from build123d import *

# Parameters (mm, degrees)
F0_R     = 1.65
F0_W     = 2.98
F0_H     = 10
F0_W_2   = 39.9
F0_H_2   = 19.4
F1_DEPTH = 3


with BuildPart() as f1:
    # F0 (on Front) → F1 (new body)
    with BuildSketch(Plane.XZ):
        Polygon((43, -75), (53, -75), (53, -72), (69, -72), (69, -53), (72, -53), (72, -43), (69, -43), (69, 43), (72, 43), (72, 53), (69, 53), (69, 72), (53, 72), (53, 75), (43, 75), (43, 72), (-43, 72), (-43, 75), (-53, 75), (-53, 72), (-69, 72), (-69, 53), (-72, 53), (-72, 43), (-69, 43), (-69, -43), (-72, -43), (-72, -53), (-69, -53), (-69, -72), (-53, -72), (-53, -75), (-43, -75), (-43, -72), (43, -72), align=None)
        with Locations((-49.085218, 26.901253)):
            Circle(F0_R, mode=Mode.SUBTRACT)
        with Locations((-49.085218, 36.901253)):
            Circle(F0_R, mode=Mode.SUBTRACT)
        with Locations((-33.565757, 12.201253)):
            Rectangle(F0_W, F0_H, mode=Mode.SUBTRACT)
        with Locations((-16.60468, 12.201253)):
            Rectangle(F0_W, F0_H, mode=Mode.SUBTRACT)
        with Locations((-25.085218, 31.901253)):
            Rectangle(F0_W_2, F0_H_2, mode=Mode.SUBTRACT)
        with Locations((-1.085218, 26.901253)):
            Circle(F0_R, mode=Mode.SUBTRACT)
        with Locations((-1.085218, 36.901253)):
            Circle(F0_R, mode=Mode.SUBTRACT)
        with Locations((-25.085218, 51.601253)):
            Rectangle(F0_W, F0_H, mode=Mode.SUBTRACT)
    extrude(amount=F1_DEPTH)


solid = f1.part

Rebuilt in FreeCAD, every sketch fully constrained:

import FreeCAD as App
import Part
import Sketcher


def add_polygon(sketch, points):
    """Adds a closed chain of lines whose ends are joined by coincident constraints."""
    first, n = sketch.GeometryCount, len(points)
    for a, b in zip(points, points[1:] + points[:1]):
        sketch.addGeometry(Part.LineSegment(App.Vector(*a, 0), App.Vector(*b, 0)), False)
    for i in range(n):
        sketch.addConstraint(Sketcher.Constraint("Coincident", first + i, 2, first + (i + 1) % n, 1))

doc = App.newDocument("Part")
params = doc.addObject("Spreadsheet::Sheet", "Params")
for row, (alias, value) in enumerate([
    ("sketch1_diameter", "3.3 mm"),
    ("sketch1_width", "10 mm"),
    ("sketch1_width2", "16 mm"),
    ("sketch1_width3", "3 mm"),
    ("sketch1_width4", "86 mm"),
    ("pad1_length", "3 mm"),
], start=1):
    params.set(f"A{row}", alias)
    params.set(f"B{row}", "=" + value)
    params.setAlias(f"B{row}", alias)

body = doc.addObject("PartDesign::Body", "Body")

# Sketch on XZ plane
sketch1 = body.newObject("Sketcher::SketchObject", "Sketch")
sketch1.AttachmentSupport = (doc.getObject("XZ_Plane"), [""])
sketch1.MapMode = "FlatFace"
add_polygon(sketch1, [(43, -75), (53, -75), (53, -72), (69, -72), (69, -53), (72, -53), (72, -43), (69, -43), (69, 43), (72, 43), (72, 53), (69, 53), (69, 72), (53, 72), (53, 75), (43, 75), (43, 72), (-43, 72), (-43, 75), (-53, 75), (-53, 72), (-69, 72), (-69, 53), (-72, 53), (-72, 43), (-69, 43), (-69, -43), (-72, -43), (-72, -53), (-69, -53), (-69, -72), (-53, -72), (-53, -75), (-43, -75), (-43, -72), (43, -72)])  # lines 0-35
add_polygon(sketch1, [(-32.075757, 7.201253), (-35.055757, 7.201253), (-35.055757, 17.201253), (-32.075757, 17.201253)])  # lines 36-39
sketch1.addGeometry(Part.Circle(App.Vector(-49.085218, 26.901253, 0), App.Vector(0, 0, 1), 1.65), False)  # 40
add_polygon(sketch1, [(-15.11468, 7.201253), (-18.09468, 7.201253), (-18.09468, 17.201253), (-15.11468, 17.201253)])  # lines 41-44
sketch1.addGeometry(Part.Circle(App.Vector(-1.085218, 26.901253, 0), App.Vector(0, 0, 1), 1.65), False)  # 45
sketch1.addGeometry(Part.Circle(App.Vector(-49.085218, 36.901253, 0), App.Vector(0, 0, 1), 1.65), False)  # 46
add_polygon(sketch1, [(-5.135218, 22.201253), (-45.035218, 22.201253), (-45.035218, 41.601253), (-5.135218, 41.601253)])  # lines 47-50
add_polygon(sketch1, [(-23.595218, 46.601253), (-26.575218, 46.601253), (-26.575218, 56.601253), (-23.595218, 56.601253)])  # lines 51-54
sketch1.addGeometry(Part.Circle(App.Vector(-1.085218, 36.901253, 0), App.Vector(0, 0, 1), 1.65), False)  # 55
sketch1.addConstraint([
    Sketcher.Constraint("Horizontal", 0),
    Sketcher.Constraint("Vertical", 1),
    Sketcher.Constraint("Horizontal", 2),
    Sketcher.Constraint("Vertical", 3),
    Sketcher.Constraint("Horizontal", 4),
    Sketcher.Constraint("Vertical", 5),
    Sketcher.Constraint("Horizontal", 6),
    Sketcher.Constraint("Vertical", 7),
    Sketcher.Constraint("Horizontal", 8),
    Sketcher.Constraint("Vertical", 9),
    Sketcher.Constraint("Horizontal", 10),
    Sketcher.Constraint("Vertical", 11),
    Sketcher.Constraint("Horizontal", 12),
    Sketcher.Constraint("Vertical", 13),
    Sketcher.Constraint("Horizontal", 14),
    Sketcher.Constraint("Vertical", 15),
    Sketcher.Constraint("Horizontal", 16),
    Sketcher.Constraint("Vertical", 17),
    Sketcher.Constraint("Horizontal", 18),
    Sketcher.Constraint("Vertical", 19),
    Sketcher.Constraint("Horizontal", 20),
    Sketcher.Constraint("Vertical", 21),
    Sketcher.Constraint("Horizontal", 22),
    Sketcher.Constraint("Vertical", 23),
    Sketcher.Constraint("Horizontal", 24),
    Sketcher.Constraint("Vertical", 25),
    Sketcher.Constraint("Horizontal", 26),
    Sketcher.Constraint("Vertical", 27),
    Sketcher.Constraint("Horizontal", 28),
    Sketcher.Constraint("Vertical", 29),
    Sketcher.Constraint("Horizontal", 30),
    Sketcher.Constraint("Vertical", 31),
    Sketcher.Constraint("Horizontal", 32),
    Sketcher.Constraint("Vertical", 33),
    Sketcher.Constraint("Horizontal", 34),
    Sketcher.Constraint("Vertical", 35),
    Sketcher.Constraint("Horizontal", 36),
    Sketcher.Constraint("Vertical", 37),
    Sketcher.Constraint("Horizontal", 38),
    Sketcher.Constraint("Vertical", 39),
    Sketcher.Constraint("Horizontal", 41),
    Sketcher.Constraint("Vertical", 42),
    Sketcher.Constraint("Horizontal", 43),
    Sketcher.Constraint("Vertical", 44),
    Sketcher.Constraint("Horizontal", 47),
    Sketcher.Constraint("Vertical", 48),
    Sketcher.Constraint("Horizontal", 49),
    Sketcher.Constraint("Vertical", 50),
    Sketcher.Constraint("Horizontal", 51),
    Sketcher.Constraint("Vertical", 52),
    Sketcher.Constraint("Horizontal", 53),
    Sketcher.Constraint("Vertical", 54),
    Sketcher.Constraint("Equal", 40, 45),
    Sketcher.Constraint("Equal", 45, 46),
    Sketcher.Constraint("Equal", 46, 55),
    Sketcher.Constraint("Symmetric", 0, 2, 18, 2, -1, 1),
    Sketcher.Constraint("Symmetric", 2, 2, 20, 2, -1, 1),
    Sketcher.Constraint("Symmetric", 4, 2, 22, 2, -1, 1),
    Sketcher.Constraint("Symmetric", 6, 2, 24, 2, -1, 1),
    Sketcher.Constraint("Symmetric", 8, 2, 26, 2, -1, 1),
    Sketcher.Constraint("Symmetric", 10, 2, 28, 2, -1, 1),
    Sketcher.Constraint("Symmetric", 12, 2, 30, 2, -1, 1),
    Sketcher.Constraint("Symmetric", 14, 2, 32, 2, -1, 1),
    Sketcher.Constraint("Symmetric", 16, 2, 34, 2, -1, 1),
    Sketcher.Constraint("Symmetric", 14, 2, 17, 2, -2),
    Sketcher.Constraint("Symmetric", 12, 2, 19, 2, -2),
    Sketcher.Constraint("Symmetric", 10, 2, 21, 2, -2),
    Sketcher.Constraint("Symmetric", 8, 2, 23, 2, -2),
    Sketcher.Constraint("Horizontal", 40, 3, 45, 3),
    Sketcher.Constraint("Horizontal", 46, 3, 55, 3),
    Sketcher.Constraint("Horizontal", 12, 2, 15, 2),
    Sketcher.Constraint("Horizontal", 39, 2, 41, 2),
    Sketcher.Constraint("Horizontal", 38, 2, 42, 2),
    Sketcher.Constraint("Vertical", 40, 3, 46, 3),
    Sketcher.Constraint("Vertical", 45, 3, 55, 3),
    Sketcher.Constraint("Vertical", 3, 2, 6, 2),
    Sketcher.Constraint("Equal", 38, 41),
    Sketcher.Constraint("Equal", 43, 51),
    Sketcher.Constraint("Equal", 28, 1),
    Sketcher.Constraint("Equal", 32, 5),
    Sketcher.Constraint("Equal", 34, 7),
    Sketcher.Constraint("Equal", 27, 37),
    Sketcher.Constraint("Equal", 44, 52),
    Sketcher.Constraint("Diameter", 40, 3.3),
    Sketcher.Constraint("DistanceX", 0, 1, 0, 2, 10.0),
    Sketcher.Constraint("DistanceX", 2, 1, 2, 2, 16.0),
    Sketcher.Constraint("DistanceX", 4, 1, 4, 2, 3.0),
    Sketcher.Constraint("DistanceX", 16, 2, 16, 1, 86.0),
    Sketcher.Constraint("DistanceY", 3, 1, 3, 2, 19.0),
    Sketcher.Constraint("DistanceX", 47, 2, 47, 1, 39.9),
    Sketcher.Constraint("DistanceY", 48, 1, 48, 2, 19.4),
    Sketcher.Constraint("DistanceX", 40, 3, 45, 3, 48.0),
    Sketcher.Constraint("DistanceY", 40, 3, 46, 3, 10.0),
    Sketcher.Constraint("DistanceY", 37, 2, 47, 2, 5.0),
    Sketcher.Constraint("DistanceY", 48, 2, 51, 2, 5.0),
    Sketcher.Constraint("DistanceX", 36, 2, 36, 1, 2.98),
    Sketcher.Constraint("DistanceY", 36, 2, 40, 3, 19.7),
    Sketcher.Constraint("DistanceX", 40, 3, 47, 2, 4.05),
    Sketcher.Constraint("DistanceX", 48, 2, 51, 2, 18.46),
    Sketcher.Constraint("DistanceX", 41, 2, -1, 1, 18.09468),
    Sketcher.Constraint("DistanceX", 40, 3, 36, 2, 14.029461),
    Sketcher.Constraint("DistanceX", 41, 2, 45, 3, 17.009462),
    Sketcher.Constraint("DistanceY", -1, 1, 40, 3, 26.901253),
])
sketch1.setExpression("Constraints[135]", "Params.sketch1_diameter")
sketch1.setExpression("Constraints[136]", "Params.sketch1_width")
sketch1.setExpression("Constraints[137]", "Params.sketch1_width2")
sketch1.setExpression("Constraints[138]", "Params.sketch1_width3")
sketch1.setExpression("Constraints[139]", "Params.sketch1_width4")
pad1 = body.newObject("PartDesign::Pad", "Pad")
pad1.Profile = sketch1
pad1.setExpression("Length", "Params.pad1_length")

doc.recompute()
